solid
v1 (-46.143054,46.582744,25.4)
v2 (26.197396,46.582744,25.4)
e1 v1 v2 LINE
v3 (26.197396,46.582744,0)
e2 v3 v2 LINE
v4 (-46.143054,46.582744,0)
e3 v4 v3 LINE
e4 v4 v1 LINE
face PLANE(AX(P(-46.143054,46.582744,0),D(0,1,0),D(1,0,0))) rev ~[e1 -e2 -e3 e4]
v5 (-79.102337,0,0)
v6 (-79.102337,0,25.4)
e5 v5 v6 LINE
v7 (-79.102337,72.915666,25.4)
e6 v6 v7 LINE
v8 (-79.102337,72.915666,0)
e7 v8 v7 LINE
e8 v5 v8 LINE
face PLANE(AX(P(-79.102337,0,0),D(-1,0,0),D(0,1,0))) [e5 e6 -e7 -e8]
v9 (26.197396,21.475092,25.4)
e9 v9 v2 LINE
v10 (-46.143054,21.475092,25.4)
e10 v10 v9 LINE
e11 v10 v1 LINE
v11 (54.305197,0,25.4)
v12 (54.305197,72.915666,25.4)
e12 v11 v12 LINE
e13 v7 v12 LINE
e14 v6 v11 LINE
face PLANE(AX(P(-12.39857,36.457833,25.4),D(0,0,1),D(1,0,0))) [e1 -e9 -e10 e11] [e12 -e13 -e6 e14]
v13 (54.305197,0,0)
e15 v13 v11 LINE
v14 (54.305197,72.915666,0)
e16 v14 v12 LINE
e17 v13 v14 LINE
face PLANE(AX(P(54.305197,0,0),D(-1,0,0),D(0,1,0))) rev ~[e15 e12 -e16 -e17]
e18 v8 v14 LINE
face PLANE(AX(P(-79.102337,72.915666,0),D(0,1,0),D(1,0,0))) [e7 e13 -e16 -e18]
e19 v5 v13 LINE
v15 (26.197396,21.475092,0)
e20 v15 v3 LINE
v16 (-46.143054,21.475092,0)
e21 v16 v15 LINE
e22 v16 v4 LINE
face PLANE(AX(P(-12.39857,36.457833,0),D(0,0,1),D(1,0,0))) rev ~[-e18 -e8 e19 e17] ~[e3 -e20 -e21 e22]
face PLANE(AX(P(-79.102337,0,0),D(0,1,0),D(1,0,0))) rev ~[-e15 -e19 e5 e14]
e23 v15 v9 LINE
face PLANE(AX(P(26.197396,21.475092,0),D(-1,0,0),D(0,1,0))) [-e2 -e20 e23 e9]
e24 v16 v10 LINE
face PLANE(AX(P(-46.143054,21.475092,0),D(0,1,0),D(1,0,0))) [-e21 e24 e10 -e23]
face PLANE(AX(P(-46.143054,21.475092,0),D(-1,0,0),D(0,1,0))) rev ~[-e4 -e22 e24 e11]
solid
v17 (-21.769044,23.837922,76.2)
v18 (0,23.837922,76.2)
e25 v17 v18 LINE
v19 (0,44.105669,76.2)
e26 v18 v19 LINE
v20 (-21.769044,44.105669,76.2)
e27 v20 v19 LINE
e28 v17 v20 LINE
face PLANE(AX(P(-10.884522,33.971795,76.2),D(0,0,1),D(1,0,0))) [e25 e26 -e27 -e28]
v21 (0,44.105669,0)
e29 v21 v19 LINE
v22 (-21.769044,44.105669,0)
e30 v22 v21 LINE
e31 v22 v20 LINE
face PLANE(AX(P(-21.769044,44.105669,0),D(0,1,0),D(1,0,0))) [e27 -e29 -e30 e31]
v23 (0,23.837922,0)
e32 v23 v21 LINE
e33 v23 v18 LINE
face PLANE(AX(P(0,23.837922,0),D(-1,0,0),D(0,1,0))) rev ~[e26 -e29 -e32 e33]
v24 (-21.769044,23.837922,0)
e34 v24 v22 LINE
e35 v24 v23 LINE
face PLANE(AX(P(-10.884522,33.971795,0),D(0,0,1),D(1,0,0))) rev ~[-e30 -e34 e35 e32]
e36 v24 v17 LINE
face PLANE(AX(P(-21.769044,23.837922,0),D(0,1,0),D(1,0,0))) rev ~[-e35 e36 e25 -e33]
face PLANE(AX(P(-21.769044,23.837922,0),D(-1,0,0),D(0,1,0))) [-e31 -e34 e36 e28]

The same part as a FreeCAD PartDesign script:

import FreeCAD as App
import Part
import Sketcher

V = App.Vector
Q = App.Units.Quantity

doc = App.newDocument("Part")
params = doc.addObject("Spreadsheet::Sheet", "Params")
for row, (alias, value) in enumerate([
    ("pad1_length", "1 in"),
    ("pad2_length", "3 in"),
], start=1):
    params.set(f"A{row}", alias)
    params.set(f"B{row}", "=" + value)
    params.setAlias(f"B{row}", alias)

body = doc.addObject("PartDesign::Body", "Body")

# Sketch on XY plane
sketch1 = body.newObject("Sketcher::SketchObject", "Sketch")
sketch1.AttachmentSupport = (doc.getObject("XY_Plane"), [""])
sketch1.MapMode = "FlatFace"
sketch1.addGeometry(Part.LineSegment(V(-79.102337, 72.915666, 0), V(-79.102337, 0, 0)), False)
sketch1.addGeometry(Part.LineSegment(V(-79.102337, 0, 0), V(54.305197, 0, 0)), False)
sketch1.addGeometry(Part.LineSegment(V(54.305197, 0, 0), V(54.305197, 72.915666, 0)), False)
sketch1.addGeometry(Part.LineSegment(V(54.305197, 72.915666, 0), V(-79.102337, 72.915666, 0)), False)
sketch1.addGeometry(Part.LineSegment(V(26.197396, 21.475092, 0), V(-46.143054, 21.475092, 0)), False)
sketch1.addGeometry(Part.LineSegment(V(-46.143054, 21.475092, 0), V(-46.143054, 46.582744, 0)), False)
sketch1.addGeometry(Part.LineSegment(V(-46.143054, 46.582744, 0), V(26.197396, 46.582744, 0)), False)
sketch1.addGeometry(Part.LineSegment(V(26.197396, 46.582744, 0), V(26.197396, 21.475092, 0)), False)
sketch1.addConstraint(Sketcher.Constraint("Coincident", 0, 2, 1, 1))
sketch1.addConstraint(Sketcher.Constraint("Coincident", 1, 2, 2, 1))
sketch1.addConstraint(Sketcher.Constraint("Coincident", 2, 2, 3, 1))
sketch1.addConstraint(Sketcher.Constraint("Coincident", 3, 2, 0, 1))
sketch1.addConstraint(Sketcher.Constraint("Coincident", 4, 2, 5, 1))
sketch1.addConstraint(Sketcher.Constraint("Coincident", 5, 2, 6, 1))
sketch1.addConstraint(Sketcher.Constraint("Coincident", 6, 2, 7, 1))
sketch1.addConstraint(Sketcher.Constraint("Coincident", 7, 2, 4, 1))
sketch1.addConstraint(Sketcher.Constraint("Vertical", 0))
sketch1.addConstraint(Sketcher.Constraint("Horizontal", 1))
sketch1.addConstraint(Sketcher.Constraint("Vertical", 2))
sketch1.addConstraint(Sketcher.Constraint("Horizontal", 3))
sketch1.addConstraint(Sketcher.Constraint("Horizontal", 4))
sketch1.addConstraint(Sketcher.Constraint("Vertical", 5))
sketch1.addConstraint(Sketcher.Constraint("Horizontal", 6))
sketch1.addConstraint(Sketcher.Constraint("Vertical", 7))
sketch1.addConstraint(Sketcher.Constraint("PointOnObject", 0, 2, -1))
sketch1.addConstraint(Sketcher.Constraint("DistanceX", -1, 1, 1, 2, Q("2.1379999 in")))
sketch1.addConstraint(Sketcher.Constraint("DistanceX", 4, 2, 4, 1, Q("72.340451 mm")))
sketch1.addConstraint(Sketcher.Constraint("DistanceY", 5, 1, 5, 2, Q("25.107652 mm")))
sketch1.addConstraint(Sketcher.Constraint("DistanceX", 6, 2, 2, 2, Q("28.1078 mm")))
sketch1.addConstraint(Sketcher.Constraint("DistanceX", 1, 1, 1, 2, Q("133.407533 mm")))
sketch1.addConstraint(Sketcher.Constraint("DistanceY", 0, 2, 0, 1, Q("72.915666 mm")))
sketch1.addConstraint(Sketcher.Constraint("DistanceY", -1, 1, 4, 2, Q("21.475092 mm")))
pad1 = body.newObject("PartDesign::Pad", "Pad")
pad1.Profile = sketch1
pad1.setExpression("Length", "Params.pad1_length")
body2 = doc.addObject("PartDesign::Body", "Body001")

# Sketch on XY plane
sketch2 = body2.newObject("Sketcher::SketchObject", "Sketch001")
sketch2.AttachmentSupport = (doc.getObject("XY_Plane001"), [""])
sketch2.MapMode = "FlatFace"
sketch2.addGeometry(Part.LineSegment(V(-21.769044, 44.105669, 0), V(-21.769044, 23.837922, 0)), False)
sketch2.addGeometry(Part.LineSegment(V(-21.769044, 23.837922, 0), V(0, 23.837922, 0)), False)
sketch2.addGeometry(Part.LineSegment(V(0, 23.837922, 0), V(0, 44.105669, 0)), False)
sketch2.addGeometry(Part.LineSegment(V(0, 44.105669, 0), V(-21.769044, 44.105669, 0)), False)
sketch2.addConstraint(Sketcher.Constraint("Coincident", 0, 2, 1, 1))
sketch2.addConstraint(Sketcher.Constraint("Coincident", 1, 2, 2, 1))
sketch2.addConstraint(Sketcher.Constraint("Coincident", 2, 2, 3, 1))
sketch2.addConstraint(Sketcher.Constraint("Coincident", 3, 2, 0, 1))
sketch2.addConstraint(Sketcher.Constraint("Vertical", 0))
sketch2.addConstraint(Sketcher.Constraint("Horizontal", 1))
sketch2.addConstraint(Sketcher.Constraint("Vertical", 2))
sketch2.addConstraint(Sketcher.Constraint("Horizontal", 3))
sketch2.addConstraint(Sketcher.Constraint("PointOnObject", 1, 2, -2))
sketch2.addConstraint(Sketcher.Constraint("DistanceX", 1, 1, 1, 2, Q("21.769044 mm")))
sketch2.addConstraint(Sketcher.Constraint("DistanceY", 0, 2, 0, 1, Q("20.267747 mm")))
sketch2.addConstraint(Sketcher.Constraint("DistanceY", -1, 1, 0, 2, Q("23.837922 mm")))
pad2 = body2.newObject("PartDesign::Pad", "Pad001")
pad2.Profile = sketch2
pad2.setExpression("Length", "Params.pad2_length")

doc.recompute()
